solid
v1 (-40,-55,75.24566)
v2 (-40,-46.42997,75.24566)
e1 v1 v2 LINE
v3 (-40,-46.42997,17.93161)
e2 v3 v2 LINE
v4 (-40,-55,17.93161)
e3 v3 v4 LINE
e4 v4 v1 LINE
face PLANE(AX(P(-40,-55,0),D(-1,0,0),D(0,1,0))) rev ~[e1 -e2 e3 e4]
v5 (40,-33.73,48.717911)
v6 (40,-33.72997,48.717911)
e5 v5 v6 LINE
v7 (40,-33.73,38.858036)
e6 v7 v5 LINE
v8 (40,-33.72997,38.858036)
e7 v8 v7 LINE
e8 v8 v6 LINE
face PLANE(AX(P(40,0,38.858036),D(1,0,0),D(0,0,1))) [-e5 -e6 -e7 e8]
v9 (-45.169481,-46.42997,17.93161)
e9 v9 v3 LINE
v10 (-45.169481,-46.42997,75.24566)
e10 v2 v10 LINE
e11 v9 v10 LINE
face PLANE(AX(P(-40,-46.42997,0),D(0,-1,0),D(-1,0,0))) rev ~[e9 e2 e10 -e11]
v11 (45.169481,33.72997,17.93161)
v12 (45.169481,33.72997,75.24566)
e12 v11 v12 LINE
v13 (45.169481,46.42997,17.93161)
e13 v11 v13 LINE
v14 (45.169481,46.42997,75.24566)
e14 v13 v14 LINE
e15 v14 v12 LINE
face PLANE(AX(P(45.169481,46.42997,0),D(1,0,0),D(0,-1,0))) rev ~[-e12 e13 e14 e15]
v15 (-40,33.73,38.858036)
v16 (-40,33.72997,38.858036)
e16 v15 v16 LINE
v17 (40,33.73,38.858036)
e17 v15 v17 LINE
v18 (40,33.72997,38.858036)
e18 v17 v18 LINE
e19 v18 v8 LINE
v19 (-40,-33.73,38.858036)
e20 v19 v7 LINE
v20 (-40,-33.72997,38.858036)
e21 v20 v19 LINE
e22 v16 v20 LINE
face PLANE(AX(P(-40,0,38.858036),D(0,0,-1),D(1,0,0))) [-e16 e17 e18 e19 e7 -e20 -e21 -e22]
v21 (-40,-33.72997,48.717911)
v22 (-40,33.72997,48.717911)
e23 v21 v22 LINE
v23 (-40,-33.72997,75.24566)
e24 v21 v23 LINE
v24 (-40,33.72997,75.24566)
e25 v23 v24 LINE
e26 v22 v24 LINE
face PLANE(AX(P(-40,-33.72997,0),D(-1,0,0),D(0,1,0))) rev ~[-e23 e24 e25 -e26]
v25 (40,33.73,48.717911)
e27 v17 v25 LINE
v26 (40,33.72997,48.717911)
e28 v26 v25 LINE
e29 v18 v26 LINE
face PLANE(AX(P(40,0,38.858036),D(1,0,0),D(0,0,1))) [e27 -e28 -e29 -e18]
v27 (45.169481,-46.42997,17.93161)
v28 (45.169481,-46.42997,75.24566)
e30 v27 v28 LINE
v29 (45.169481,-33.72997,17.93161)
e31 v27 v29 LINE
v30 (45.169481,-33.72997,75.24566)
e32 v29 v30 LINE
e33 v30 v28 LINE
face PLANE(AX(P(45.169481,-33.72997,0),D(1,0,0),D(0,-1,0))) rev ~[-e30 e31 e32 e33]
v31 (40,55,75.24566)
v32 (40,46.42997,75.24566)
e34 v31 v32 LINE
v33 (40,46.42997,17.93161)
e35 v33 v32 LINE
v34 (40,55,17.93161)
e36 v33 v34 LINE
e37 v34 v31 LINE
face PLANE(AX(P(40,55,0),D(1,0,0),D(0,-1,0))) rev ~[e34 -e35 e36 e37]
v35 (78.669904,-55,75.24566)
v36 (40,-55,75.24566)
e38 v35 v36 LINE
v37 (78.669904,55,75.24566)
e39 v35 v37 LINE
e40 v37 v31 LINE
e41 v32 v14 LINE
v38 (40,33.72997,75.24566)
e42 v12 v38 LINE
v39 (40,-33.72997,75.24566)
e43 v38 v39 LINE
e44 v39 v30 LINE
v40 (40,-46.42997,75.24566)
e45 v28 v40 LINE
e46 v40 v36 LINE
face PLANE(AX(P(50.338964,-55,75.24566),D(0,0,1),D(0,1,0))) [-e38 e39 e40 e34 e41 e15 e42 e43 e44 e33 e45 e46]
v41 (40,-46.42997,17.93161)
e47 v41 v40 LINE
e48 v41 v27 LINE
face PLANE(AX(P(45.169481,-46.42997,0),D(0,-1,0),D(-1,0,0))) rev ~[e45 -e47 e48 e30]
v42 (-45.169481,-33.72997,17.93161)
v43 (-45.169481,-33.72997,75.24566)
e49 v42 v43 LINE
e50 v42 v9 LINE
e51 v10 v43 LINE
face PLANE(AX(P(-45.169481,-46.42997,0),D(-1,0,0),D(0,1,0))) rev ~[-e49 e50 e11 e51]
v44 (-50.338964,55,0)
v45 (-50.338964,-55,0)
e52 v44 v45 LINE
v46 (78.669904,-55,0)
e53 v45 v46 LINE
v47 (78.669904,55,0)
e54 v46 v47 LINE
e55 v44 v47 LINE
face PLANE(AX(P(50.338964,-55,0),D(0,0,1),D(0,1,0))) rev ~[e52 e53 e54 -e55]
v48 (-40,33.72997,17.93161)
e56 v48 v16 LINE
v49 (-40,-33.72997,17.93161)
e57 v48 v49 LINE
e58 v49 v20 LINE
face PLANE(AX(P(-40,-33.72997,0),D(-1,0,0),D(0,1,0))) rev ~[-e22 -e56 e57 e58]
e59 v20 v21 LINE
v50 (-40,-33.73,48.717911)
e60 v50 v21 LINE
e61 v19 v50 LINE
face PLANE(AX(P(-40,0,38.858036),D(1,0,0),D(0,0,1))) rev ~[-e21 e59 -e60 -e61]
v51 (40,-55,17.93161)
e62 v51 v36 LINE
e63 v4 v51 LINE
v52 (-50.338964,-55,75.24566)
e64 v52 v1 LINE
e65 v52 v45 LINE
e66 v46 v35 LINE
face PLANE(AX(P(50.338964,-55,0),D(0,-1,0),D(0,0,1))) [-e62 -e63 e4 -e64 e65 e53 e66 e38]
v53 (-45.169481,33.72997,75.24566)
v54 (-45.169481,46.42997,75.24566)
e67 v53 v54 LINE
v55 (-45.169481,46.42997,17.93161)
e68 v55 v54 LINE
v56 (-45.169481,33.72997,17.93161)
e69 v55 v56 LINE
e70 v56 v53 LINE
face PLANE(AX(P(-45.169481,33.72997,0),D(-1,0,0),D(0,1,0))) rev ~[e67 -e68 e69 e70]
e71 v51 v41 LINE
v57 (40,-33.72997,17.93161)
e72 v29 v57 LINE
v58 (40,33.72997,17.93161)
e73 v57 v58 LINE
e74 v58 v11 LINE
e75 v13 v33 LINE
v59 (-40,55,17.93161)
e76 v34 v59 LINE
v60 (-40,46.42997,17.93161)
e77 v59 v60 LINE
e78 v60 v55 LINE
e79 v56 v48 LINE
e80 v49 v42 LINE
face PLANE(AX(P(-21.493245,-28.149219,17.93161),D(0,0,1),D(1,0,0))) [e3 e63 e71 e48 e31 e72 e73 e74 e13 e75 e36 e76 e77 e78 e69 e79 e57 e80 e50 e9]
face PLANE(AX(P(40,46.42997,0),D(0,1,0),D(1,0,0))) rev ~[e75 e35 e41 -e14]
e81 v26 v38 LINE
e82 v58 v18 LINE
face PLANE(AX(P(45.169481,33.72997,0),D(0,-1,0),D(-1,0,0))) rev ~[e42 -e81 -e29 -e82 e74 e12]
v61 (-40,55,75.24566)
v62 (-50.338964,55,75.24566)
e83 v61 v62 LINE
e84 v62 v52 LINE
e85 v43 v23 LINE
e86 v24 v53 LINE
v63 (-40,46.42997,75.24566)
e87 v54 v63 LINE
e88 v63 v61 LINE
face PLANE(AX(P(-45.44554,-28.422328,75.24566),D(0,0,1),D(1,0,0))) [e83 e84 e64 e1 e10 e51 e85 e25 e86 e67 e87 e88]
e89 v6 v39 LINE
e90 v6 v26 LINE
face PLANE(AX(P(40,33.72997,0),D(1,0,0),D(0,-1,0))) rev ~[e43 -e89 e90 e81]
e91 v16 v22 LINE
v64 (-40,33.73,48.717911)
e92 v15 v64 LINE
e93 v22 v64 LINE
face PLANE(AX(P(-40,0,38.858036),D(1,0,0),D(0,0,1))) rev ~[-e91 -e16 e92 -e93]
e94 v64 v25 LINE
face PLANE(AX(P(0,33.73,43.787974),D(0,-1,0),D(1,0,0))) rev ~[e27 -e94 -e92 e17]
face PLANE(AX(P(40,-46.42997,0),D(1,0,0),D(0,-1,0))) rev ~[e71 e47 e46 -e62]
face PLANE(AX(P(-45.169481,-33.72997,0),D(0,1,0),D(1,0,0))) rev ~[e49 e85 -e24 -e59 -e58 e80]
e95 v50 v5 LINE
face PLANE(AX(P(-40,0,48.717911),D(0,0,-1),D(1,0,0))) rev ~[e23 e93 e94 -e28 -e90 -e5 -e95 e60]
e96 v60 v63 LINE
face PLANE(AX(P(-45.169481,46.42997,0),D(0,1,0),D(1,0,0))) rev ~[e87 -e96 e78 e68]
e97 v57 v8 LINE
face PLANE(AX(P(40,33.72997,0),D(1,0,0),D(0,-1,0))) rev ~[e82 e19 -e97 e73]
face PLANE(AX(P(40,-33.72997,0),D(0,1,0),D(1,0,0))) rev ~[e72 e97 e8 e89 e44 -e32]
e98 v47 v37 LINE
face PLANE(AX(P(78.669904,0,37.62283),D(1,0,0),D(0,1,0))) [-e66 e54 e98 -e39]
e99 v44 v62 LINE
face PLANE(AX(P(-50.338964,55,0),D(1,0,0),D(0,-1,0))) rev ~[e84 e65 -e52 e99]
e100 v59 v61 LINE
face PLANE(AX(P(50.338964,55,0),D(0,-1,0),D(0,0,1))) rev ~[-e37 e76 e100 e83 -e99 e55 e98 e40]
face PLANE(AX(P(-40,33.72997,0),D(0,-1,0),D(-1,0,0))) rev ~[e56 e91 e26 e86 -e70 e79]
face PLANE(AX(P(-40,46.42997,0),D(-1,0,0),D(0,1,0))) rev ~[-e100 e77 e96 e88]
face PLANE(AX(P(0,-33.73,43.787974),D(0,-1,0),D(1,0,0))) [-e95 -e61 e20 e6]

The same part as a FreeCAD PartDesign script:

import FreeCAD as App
import Part
import Sketcher

V = App.Vector

doc = App.newDocument("Part")
body = doc.addObject("PartDesign::Body", "Body")

sketch1 = body.newObject("Sketcher::SketchObject", "Sketch")
sketch1.AttachmentSupport = (doc.getObject("XY_Plane"), [""])
sketch1.MapMode = "FlatFace"
sketch1.addGeometry([
    Part.LineSegment(V(-50.338964, -55, 0), V(50.338964, -55, 0)),
    Part.LineSegment(V(50.338964, -55, 0), V(50.338964, 55, 0)),
    Part.LineSegment(V(50.338964, 55, 0), V(-50.338964, 55, 0)),
    Part.LineSegment(V(-50.338964, 55, 0), V(-50.338964, -55, 0)),
], False)
sketch1.addConstraint([
    Sketcher.Constraint("Coincident", 0, 2, 1, 1),
    Sketcher.Constraint("Coincident", 1, 2, 2, 1),
    Sketcher.Constraint("Coincident", 2, 2, 3, 1),
    Sketcher.Constraint("Coincident", 3, 2, 0, 1),
    Sketcher.Constraint("Horizontal", 0),
    Sketcher.Constraint("Vertical", 1),
    Sketcher.Constraint("Horizontal", 2),
    Sketcher.Constraint("Vertical", 3),
    Sketcher.Constraint("Symmetric", 0, 2, 2, 2, -1, 1),
    Sketcher.Constraint("DistanceY", 1, 1, 1, 2, 110.0),
    Sketcher.Constraint("DistanceX", 0, 1, 0, 2, 100.677928),
])
pad1 = body.newObject("PartDesign::Pad", "Pad")
pad1.Profile = sketch1
pad1.Length = 17.93161

sketch2 = body.newObject("Sketcher::SketchObject", "Sketch001")
sketch2.AttachmentSupport = (doc.getObject("XY_Plane"), [""])
sketch2.MapMode = "FlatFace"
sketch2.addGeometry([
    Part.LineSegment(V(40, -46.42997, 0), V(40, -55, 0)),
    Part.LineSegment(V(40, -55, 0), V(50.338964, -55, 0)),
    Part.LineSegment(V(50.338964, -55, 0), V(50.338964, 55, 0)),
    Part.LineSegment(V(50.338964, 55, 0), V(40, 55, 0)),
    Part.LineSegment(V(40, 55, 0), V(40, 46.42997, 0)),
    Part.LineSegment(V(40, 46.42997, 0), V(45.169481, 46.42997, 0)),
    Part.LineSegment(V(45.169481, 46.42997, 0), V(45.169481, 33.72997, 0)),
    Part.LineSegment(V(45.169481, 33.72997, 0), V(40, 33.72997, 0)),
    Part.LineSegment(V(40, 33.72997, 0), V(40, -33.72997, 0)),
    Part.LineSegment(V(40, -33.72997, 0), V(45.169481, -33.72997, 0)),
    Part.LineSegment(V(45.169481, -33.72997, 0), V(45.169481, -46.42997, 0)),
    Part.LineSegment(V(45.169481, -46.42997, 0), V(40, -46.42997, 0)),
    Part.LineSegment(V(-50.338964, -55, 0), V(-40, -55, 0)),
    Part.LineSegment(V(-40, -55, 0), V(-40, -46.42997, 0)),
    Part.LineSegment(V(-40, -46.42997, 0), V(-45.169481, -46.42997, 0)),
    Part.LineSegment(V(-45.169481, -46.42997, 0), V(-45.169481, -33.72997, 0)),
    Part.LineSegment(V(-45.169481, -33.72997, 0), V(-40, -33.72997, 0)),
    Part.LineSegment(V(-40, -33.72997, 0), V(-40, 33.72997, 0)),
    Part.LineSegment(V(-40, 33.72997, 0), V(-45.169481, 33.72997, 0)),
    Part.LineSegment(V(-45.169481, 33.72997, 0), V(-45.169481, 46.42997, 0)),
    Part.LineSegment(V(-45.169481, 46.42997, 0), V(-40, 46.42997, 0)),
    Part.LineSegment(V(-40, 46.42997, 0), V(-40, 55, 0)),
    Part.LineSegment(V(-40, 55, 0), V(-50.338964, 55, 0)),
    Part.LineSegment(V(-50.338964, 55, 0), V(-50.338964, -55, 0)),
], False)
sketch2.addConstraint([
    Sketcher.Constraint("Coincident", 0, 2, 1, 1),
    Sketcher.Constraint("Coincident", 1, 2, 2, 1),
    Sketcher.Constraint("Coincident", 2, 2, 3, 1),
    Sketcher.Constraint("Coincident", 3, 2, 4, 1),
    Sketcher.Constraint("Coincident", 4, 2, 5, 1),
    Sketcher.Constraint("Coincident", 5, 2, 6, 1),
    Sketcher.Constraint("Coincident", 6, 2, 7, 1),
    Sketcher.Constraint("Coincident", 7, 2, 8, 1),
    Sketcher.Constraint("Coincident", 8, 2, 9, 1),
    Sketcher.Constraint("Coincident", 9, 2, 10, 1),
    Sketcher.Constraint("Coincident", 10, 2, 11, 1),
    Sketcher.Constraint("Coincident", 11, 2, 0, 1),
    Sketcher.Constraint("Coincident", 12, 2, 13, 1),
    Sketcher.Constraint("Coincident", 13, 2, 14, 1),
    Sketcher.Constraint("Coincident", 14, 2, 15, 1),
    Sketcher.Constraint("Coincident", 15, 2, 16, 1),
    Sketcher.Constraint("Coincident", 16, 2, 17, 1),
    Sketcher.Constraint("Coincident", 17, 2, 18, 1),
    Sketcher.Constraint("Coincident", 18, 2, 19, 1),
    Sketcher.Constraint("Coincident", 19, 2, 20, 1),
    Sketcher.Constraint("Coincident", 20, 2, 21, 1),
    Sketcher.Constraint("Coincident", 21, 2, 22, 1),
    Sketcher.Constraint("Coincident", 22, 2, 23, 1),
    Sketcher.Constraint("Coincident", 23, 2, 12, 1),
    Sketcher.Constraint("Vertical", 0),
    Sketcher.Constraint("Horizontal", 1),
    Sketcher.Constraint("Vertical", 2),
    Sketcher.Constraint("Horizontal", 3),
    Sketcher.Constraint("Vertical", 4),
    Sketcher.Constraint("Horizontal", 5),
    Sketcher.Constraint("Vertical", 6),
    Sketcher.Constraint("Horizontal", 7),
    Sketcher.Constraint("Vertical", 8),
    Sketcher.Constraint("Horizontal", 9),
    Sketcher.Constraint("Vertical", 10),
    Sketcher.Constraint("Horizontal", 11),
    Sketcher.Constraint("Horizontal", 12),
    Sketcher.Constraint("Vertical", 13),
    Sketcher.Constraint("Horizontal", 14),
    Sketcher.Constraint("Vertical", 15),
    Sketcher.Constraint("Horizontal", 16),
    Sketcher.Constraint("Vertical", 17),
    Sketcher.Constraint("Horizontal", 18),
    Sketcher.Constraint("Vertical", 19),
    Sketcher.Constraint("Horizontal", 20),
    Sketcher.Constraint("Vertical", 21),
    Sketcher.Constraint("Horizontal", 22),
    Sketcher.Constraint("Vertical", 23),
    Sketcher.Constraint("Symmetric", 3, 2, 12, 2, -1, 1),
    Sketcher.Constraint("Symmetric", 5, 2, 14, 2, -1, 1),
    Sketcher.Constraint("Symmetric", 7, 2, 16, 2, -1, 1),
    Sketcher.Constraint("Symmetric", 9, 2, 18, 2, -1, 1),
    Sketcher.Constraint("Symmetric", 11, 2, 20, 2, -1, 1),
    Sketcher.Constraint("Symmetric", 1, 2, 22, 2, -1, 1),
    Sketcher.Constraint("Symmetric", 0, 2, 12, 2, -2),
    Sketcher.Constraint("Symmetric", 10, 2, 14, 2, -2),
    Sketcher.Constraint("Horizontal", 9, 2, 15, 2),
    Sketcher.Constraint("Vertical", 4, 2, 7, 2),
    Sketcher.Constraint("DistanceY", 2, 1, 2, 2, 110.0),
    Sketcher.Constraint("DistanceY", 6, 2, 6, 1, 12.7),
    Sketcher.Constraint("DistanceX", -1, 1, 0, 2, 40.0),
    Sketcher.Constraint("DistanceX", 5, 1, 5, 2, 5.169481),
    Sketcher.Constraint("DistanceY", 0, 2, 0, 1, 8.57003),
    Sketcher.Constraint("DistanceX", 1, 1, 1, 2, 10.338964),
])
pad2 = body.newObject("PartDesign::Pad", "Pad001")
pad2.Profile = sketch2
pad2.Length = 75.24566

sketch3 = body.newObject("Sketcher::SketchObject", "Sketch002")
sketch3.AttachmentSupport = (doc.getObject("XZ_Plane"), [""])
sketch3.MapMode = "FlatFace"
sketch3.addGeometry([
    Part.LineSegment(V(-40, 48.717911, 0), V(-40, 38.858036, 0)),
    Part.LineSegment(V(-40, 38.858036, 0), V(40, 38.858036, 0)),
    Part.LineSegment(V(40, 38.858036, 0), V(40, 48.717911, 0)),
    Part.LineSegment(V(40, 48.717911, 0), V(-40, 48.717911, 0)),
], False)
sketch3.addConstraint([
    Sketcher.Constraint("Coincident", 0, 2, 1, 1),
    Sketcher.Constraint("Coincident", 1, 2, 2, 1),
    Sketcher.Constraint("Coincident", 2, 2, 3, 1),
    Sketcher.Constraint("Coincident", 3, 2, 0, 1),
    Sketcher.Constraint("Vertical", 0),
    Sketcher.Constraint("Horizontal", 1),
    Sketcher.Constraint("Vertical", 2),
    Sketcher.Constraint("Horizontal", 3),
    Sketcher.Constraint("DistanceX", 1, 1, 1, 2, 80.0),
    Sketcher.Constraint("DistanceX", 0, 2, -1, 1, 40.0),
    Sketcher.Constraint("DistanceY", 0, 2, 0, 1, 9.859875),
    Sketcher.Constraint("DistanceY", -1, 1, 2, 2, 48.717911),
])
pad3 = body.newObject("PartDesign::Pad", "Pad002")
pad3.Profile = sketch3
pad3.Length = 67.46
pad3.Midplane = True

sketch4 = body.newObject("Sketcher::SketchObject", "Sketch003")
sketch4.AttachmentSupport = (doc.getObject("YZ_Plane"), [""])
sketch4.MapMode = "FlatFace"
sketch4.AttachmentOffset = App.Placement(V(0, 0, 50.338964), App.Rotation())
sketch4.addGeometry([
    Part.LineSegment(V(-55, 75.24566, 0), V(-55, 0, 0)),
    Part.LineSegment(V(-55, 0, 0), V(55, 0, 0)),
    Part.LineSegment(V(55, 0, 0), V(55, 75.24566, 0)),
    Part.LineSegment(V(55, 75.24566, 0), V(-55, 75.24566, 0)),
], False)
sketch4.addConstraint([
    Sketcher.Constraint("Coincident", 0, 2, 1, 1),
    Sketcher.Constraint("Coincident", 1, 2, 2, 1),
    Sketcher.Constraint("Coincident", 2, 2, 3, 1),
    Sketcher.Constraint("Coincident", 3, 2, 0, 1),
    Sketcher.Constraint("Vertical", 0),
    Sketcher.Constraint("Horizontal", 1),
    Sketcher.Constraint("Vertical", 2),
    Sketcher.Constraint("Horizontal", 3),
    Sketcher.Constraint("Symmetric", 0, 2, 1, 2, -1, 1),
    Sketcher.Constraint("DistanceX", 1, 1, 1, 2, 110.0),
    Sketcher.Constraint("DistanceY", 0, 2, 0, 1, 75.24566),
])
pad4 = body.newObject("PartDesign::Pad", "Pad003")
pad4.Profile = sketch4
pad4.Length = 28.33094

doc.recompute()
